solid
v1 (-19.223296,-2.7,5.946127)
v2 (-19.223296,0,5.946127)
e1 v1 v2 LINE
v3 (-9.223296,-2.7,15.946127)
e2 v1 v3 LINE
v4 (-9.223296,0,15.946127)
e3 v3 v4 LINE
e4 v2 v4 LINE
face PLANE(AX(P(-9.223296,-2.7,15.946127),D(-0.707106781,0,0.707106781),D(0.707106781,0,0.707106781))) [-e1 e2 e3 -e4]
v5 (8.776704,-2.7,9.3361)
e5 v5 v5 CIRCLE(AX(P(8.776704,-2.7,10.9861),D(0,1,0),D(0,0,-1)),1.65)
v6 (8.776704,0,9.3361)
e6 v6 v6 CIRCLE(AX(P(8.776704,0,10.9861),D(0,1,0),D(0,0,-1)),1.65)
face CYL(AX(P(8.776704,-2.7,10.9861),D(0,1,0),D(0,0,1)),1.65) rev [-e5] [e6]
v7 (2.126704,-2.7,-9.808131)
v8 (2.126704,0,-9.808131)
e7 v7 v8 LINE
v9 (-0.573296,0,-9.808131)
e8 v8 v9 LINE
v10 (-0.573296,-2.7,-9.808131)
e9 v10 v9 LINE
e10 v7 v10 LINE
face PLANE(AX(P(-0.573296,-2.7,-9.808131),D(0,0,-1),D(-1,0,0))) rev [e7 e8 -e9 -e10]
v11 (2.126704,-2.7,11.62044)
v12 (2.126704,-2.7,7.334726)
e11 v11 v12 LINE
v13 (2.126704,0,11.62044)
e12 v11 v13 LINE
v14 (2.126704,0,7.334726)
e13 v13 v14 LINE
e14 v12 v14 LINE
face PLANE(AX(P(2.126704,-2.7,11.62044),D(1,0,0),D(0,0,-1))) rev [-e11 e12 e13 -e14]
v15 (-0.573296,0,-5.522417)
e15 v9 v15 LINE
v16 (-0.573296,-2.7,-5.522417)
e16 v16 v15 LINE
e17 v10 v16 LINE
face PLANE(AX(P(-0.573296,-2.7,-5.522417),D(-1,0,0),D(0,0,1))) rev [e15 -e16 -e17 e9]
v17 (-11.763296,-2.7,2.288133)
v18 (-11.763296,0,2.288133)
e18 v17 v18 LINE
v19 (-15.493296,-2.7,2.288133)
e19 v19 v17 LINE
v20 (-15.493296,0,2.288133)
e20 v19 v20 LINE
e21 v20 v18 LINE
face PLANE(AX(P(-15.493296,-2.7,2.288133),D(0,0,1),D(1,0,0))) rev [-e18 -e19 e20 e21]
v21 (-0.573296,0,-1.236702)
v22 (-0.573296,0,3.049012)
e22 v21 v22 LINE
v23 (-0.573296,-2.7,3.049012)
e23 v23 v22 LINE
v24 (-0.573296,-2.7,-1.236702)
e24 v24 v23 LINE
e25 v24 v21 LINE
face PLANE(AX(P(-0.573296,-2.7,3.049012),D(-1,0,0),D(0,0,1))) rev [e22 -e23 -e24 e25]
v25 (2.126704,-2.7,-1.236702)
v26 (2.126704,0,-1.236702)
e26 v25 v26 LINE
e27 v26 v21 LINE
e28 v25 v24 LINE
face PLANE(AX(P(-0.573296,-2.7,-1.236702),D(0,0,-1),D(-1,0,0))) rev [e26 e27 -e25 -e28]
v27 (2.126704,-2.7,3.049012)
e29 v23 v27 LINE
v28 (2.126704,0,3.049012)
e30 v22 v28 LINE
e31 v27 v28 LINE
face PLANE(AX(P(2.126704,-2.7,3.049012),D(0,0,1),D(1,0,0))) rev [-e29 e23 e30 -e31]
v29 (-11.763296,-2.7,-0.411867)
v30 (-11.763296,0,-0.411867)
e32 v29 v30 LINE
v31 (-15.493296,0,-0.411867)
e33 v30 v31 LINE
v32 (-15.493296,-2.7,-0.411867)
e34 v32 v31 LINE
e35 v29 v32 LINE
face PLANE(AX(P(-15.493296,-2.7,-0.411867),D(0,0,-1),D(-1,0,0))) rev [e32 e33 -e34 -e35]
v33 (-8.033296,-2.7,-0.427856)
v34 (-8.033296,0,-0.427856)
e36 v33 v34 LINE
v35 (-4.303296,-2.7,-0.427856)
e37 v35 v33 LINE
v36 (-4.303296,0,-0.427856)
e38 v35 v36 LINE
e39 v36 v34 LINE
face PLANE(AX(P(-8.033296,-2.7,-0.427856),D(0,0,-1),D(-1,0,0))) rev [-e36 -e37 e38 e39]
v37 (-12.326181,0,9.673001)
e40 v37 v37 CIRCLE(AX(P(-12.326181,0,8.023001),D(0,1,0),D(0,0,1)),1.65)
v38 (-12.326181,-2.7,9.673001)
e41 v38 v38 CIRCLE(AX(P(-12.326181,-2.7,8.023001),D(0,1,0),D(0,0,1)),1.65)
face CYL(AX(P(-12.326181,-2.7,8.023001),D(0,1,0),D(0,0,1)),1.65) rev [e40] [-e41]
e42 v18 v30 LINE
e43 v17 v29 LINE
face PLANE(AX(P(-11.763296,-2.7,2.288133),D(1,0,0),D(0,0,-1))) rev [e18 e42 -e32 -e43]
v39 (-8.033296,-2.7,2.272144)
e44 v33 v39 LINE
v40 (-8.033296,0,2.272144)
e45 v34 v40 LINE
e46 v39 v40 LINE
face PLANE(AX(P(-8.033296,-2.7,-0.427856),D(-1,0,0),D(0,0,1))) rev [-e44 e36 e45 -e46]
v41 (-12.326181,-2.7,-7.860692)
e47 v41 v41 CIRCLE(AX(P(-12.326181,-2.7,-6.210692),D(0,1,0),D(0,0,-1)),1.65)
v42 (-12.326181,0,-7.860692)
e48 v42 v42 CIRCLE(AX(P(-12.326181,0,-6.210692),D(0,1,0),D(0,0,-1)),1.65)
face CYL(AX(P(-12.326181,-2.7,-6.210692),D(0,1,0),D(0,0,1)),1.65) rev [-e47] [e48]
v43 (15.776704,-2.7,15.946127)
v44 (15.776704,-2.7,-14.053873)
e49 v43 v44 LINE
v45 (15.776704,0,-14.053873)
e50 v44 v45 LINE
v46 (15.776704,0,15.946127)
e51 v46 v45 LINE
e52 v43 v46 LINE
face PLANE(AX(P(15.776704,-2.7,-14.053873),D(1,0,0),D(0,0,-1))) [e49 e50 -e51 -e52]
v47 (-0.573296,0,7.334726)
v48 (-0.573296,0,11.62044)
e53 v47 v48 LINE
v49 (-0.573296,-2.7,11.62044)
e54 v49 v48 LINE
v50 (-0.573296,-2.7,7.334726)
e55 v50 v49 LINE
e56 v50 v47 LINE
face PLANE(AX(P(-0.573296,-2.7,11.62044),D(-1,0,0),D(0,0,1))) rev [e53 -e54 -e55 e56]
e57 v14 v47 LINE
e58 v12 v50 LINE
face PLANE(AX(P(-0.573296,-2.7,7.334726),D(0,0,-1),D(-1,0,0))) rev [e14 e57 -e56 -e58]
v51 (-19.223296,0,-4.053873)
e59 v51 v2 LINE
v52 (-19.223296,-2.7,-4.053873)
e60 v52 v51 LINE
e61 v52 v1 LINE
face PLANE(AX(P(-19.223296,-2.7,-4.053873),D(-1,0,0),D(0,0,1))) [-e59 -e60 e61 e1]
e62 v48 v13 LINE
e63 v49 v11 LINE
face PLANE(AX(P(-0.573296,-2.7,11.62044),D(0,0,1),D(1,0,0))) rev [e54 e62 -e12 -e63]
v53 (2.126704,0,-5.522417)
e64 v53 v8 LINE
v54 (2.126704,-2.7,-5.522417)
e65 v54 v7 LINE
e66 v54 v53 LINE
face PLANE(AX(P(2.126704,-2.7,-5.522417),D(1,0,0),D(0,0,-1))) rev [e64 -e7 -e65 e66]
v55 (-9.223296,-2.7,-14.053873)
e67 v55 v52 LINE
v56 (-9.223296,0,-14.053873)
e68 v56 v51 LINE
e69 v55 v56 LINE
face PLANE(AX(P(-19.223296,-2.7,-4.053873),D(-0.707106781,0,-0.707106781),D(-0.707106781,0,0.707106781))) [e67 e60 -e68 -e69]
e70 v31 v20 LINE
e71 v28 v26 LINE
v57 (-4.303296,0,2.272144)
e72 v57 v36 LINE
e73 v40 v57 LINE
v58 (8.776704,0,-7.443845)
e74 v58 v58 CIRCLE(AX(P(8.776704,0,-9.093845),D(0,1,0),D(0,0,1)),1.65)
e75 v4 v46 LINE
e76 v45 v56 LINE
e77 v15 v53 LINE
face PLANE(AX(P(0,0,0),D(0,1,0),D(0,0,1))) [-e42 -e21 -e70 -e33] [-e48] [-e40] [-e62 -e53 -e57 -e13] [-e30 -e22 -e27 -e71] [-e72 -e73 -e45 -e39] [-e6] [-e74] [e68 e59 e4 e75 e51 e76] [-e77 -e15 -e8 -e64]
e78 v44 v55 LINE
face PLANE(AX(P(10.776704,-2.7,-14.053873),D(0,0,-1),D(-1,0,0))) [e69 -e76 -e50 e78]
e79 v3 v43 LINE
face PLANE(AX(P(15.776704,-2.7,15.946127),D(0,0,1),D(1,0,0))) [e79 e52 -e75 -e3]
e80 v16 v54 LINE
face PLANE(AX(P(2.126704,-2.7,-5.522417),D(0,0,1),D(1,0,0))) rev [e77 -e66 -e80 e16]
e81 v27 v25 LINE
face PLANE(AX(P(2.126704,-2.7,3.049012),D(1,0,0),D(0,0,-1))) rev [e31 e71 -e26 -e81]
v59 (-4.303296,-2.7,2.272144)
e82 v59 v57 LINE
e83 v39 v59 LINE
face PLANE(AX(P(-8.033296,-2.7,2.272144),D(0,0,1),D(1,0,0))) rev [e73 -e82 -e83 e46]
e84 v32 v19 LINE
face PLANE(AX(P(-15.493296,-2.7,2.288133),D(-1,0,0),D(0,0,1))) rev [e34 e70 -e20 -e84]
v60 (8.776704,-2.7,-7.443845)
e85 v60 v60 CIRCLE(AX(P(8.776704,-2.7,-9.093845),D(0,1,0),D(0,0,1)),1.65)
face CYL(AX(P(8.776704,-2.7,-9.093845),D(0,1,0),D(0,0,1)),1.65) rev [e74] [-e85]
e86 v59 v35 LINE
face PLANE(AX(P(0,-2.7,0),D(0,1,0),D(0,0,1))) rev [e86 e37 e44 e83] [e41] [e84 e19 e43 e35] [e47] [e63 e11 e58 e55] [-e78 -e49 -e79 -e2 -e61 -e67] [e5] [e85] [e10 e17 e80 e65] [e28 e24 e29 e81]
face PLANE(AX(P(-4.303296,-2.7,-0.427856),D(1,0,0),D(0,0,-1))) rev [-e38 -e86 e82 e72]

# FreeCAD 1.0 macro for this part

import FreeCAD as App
import Part
import Sketcher

V = App.Vector


def add_polygon(sketch, points):
    """Adds a closed chain of lines whose ends are joined by coincident constraints."""
    first, n = sketch.GeometryCount, len(points)
    for a, b in zip(points, points[1:] + points[:1]):
        sketch.addGeometry(Part.LineSegment(App.Vector(*a, 0), App.Vector(*b, 0)), False)
    for i in range(n):
        sketch.addConstraint(Sketcher.Constraint("Coincident", first + i, 2, first + (i + 1) % n, 1))

doc = App.newDocument("Part")
body = doc.addObject("PartDesign::Body", "Body")

# Sketch on XZ plane
sketch1 = body.newObject("Sketcher::SketchObject", "Sketch")
sketch1.AttachmentSupport = (doc.getObject("XZ_Plane"), [""])
sketch1.MapMode = "FlatFace"
add_polygon(sketch1, [(-9.2, 15.9), (15.8, 15.9), (15.8, -14.1), (-9.2, -14.1), (-19.2, -4.1), (-19.2, 5.9)])  # lines 0-5
sketch1.addGeometry(Part.Circle(V(8.8, 11, 0), V(0, 0, 1), 1.6), False)  # 6
add_polygon(sketch1, [(-0.6, 11.6), (-0.6, 7.3), (2.1, 7.3), (2.1, 11.6)])  # lines 7-10
sketch1.addGeometry(Part.Circle(V(-12.3, 8, 0), V(0, 0, 1), 1.6), False)  # 11
add_polygon(sketch1, [(-0.6, 3), (-0.6, -1.2), (2.1, -1.2), (2.1, 3)])  # lines 12-15
sketch1.addGeometry(Part.Circle(V(8.8, -9.1, 0), V(0, 0, 1), 1.6), False)  # 16
add_polygon(sketch1, [(-0.6, -5.5), (-0.6, -9.8), (2.1, -9.8), (2.1, -5.5)])  # lines 17-20
add_polygon(sketch1, [(-8, 2.3), (-8, -0.4), (-4.3, -0.4), (-4.3, 2.3)])  # lines 21-24
add_polygon(sketch1, [(-15.5, 2.3), (-15.5, -0.4), (-11.8, -0.4), (-11.8, 2.3)])  # lines 25-28
sketch1.addGeometry(Part.Circle(V(-12.3, -6.2, 0), V(0, 0, 1), 1.6), False)  # 29
sketch1.addConstraint([
    Sketcher.Constraint("Horizontal", 0),
    Sketcher.Constraint("Vertical", 1),
    Sketcher.Constraint("Horizontal", 2),
    Sketcher.Constraint("Vertical", 4),
    Sketcher.Constraint("Vertical", 7),
    Sketcher.Constraint("Horizontal", 8),
    Sketcher.Constraint("Vertical", 9),
    Sketcher.Constraint("Horizontal", 10),
    Sketcher.Constraint("Vertical", 12),
    Sketcher.Constraint("Horizontal", 13),
    Sketcher.Constraint("Vertical", 14),
    Sketcher.Constraint("Horizontal", 15),
    Sketcher.Constraint("Vertical", 17),
    Sketcher.Constraint("Horizontal", 18),
    Sketcher.Constraint("Vertical", 19),
    Sketcher.Constraint("Horizontal", 20),
    Sketcher.Constraint("Vertical", 21),
    Sketcher.Constraint("Horizontal", 22),
    Sketcher.Constraint("Vertical", 23),
    Sketcher.Constraint("Horizontal", 24),
    Sketcher.Constraint("Vertical", 25),
    Sketcher.Constraint("Horizontal", 26),
    Sketcher.Constraint("Vertical", 27),
    Sketcher.Constraint("Horizontal", 28),
    Sketcher.Constraint("Equal", 6, 11),
    Sketcher.Constraint("Equal", 11, 16),
    Sketcher.Constraint("Equal", 16, 29),
    Sketcher.Constraint("Perpendicular", 3, 5),
    Sketcher.Constraint("Vertical", 6, 3, 16, 3),
    Sketcher.Constraint("Vertical", 11, 3, 29, 3),
    Sketcher.Constraint("Vertical", 2, 2, 5, 2),
    Sketcher.Constraint("Vertical", 10, 2, 12, 2),
    Sketcher.Constraint("Vertical", 9, 2, 13, 2),
    Sketcher.Constraint("Vertical", 15, 2, 17, 2),
    Sketcher.Constraint("Vertical", 14, 2, 18, 2),
    Sketcher.Constraint("Equal", 24, 26),
    Sketcher.Constraint("Equal", 9, 12),
    Sketcher.Constraint("Equal", 14, 17),
    Sketcher.Constraint("Equal", 20, 21),
    Sketcher.Constraint("Equal", 23, 25),
    Sketcher.Constraint("Equal", 3, 5),
    Sketcher.Constraint("Diameter", 6, 3.3),
    Sketcher.Constraint("DistanceX", 0, 1, 0, 2, 25.0),
    Sketcher.Constraint("DistanceY", 1, 2, 1, 1, 30.0),
    Sketcher.Constraint("DistanceY", 4, 1, 4, 2, 10.0),
    Sketcher.Constraint("DistanceX", 8, 1, 8, 2, 2.7),
    Sketcher.Constraint("DistanceX", 6, 3, 0, 2, 7.0),
    Sketcher.Constraint("DistanceX", 22, 1, 22, 2, 3.73),
    Sketcher.Constraint("DistanceX", 7, 2, 6, 3, 9.35),
    Sketcher.Constraint("DistanceX", 21, 2, 12, 2, 7.46),
    Sketcher.Constraint("DistanceX", 3, 2, 25, 2, 3.73),
    Sketcher.Constraint("DistanceY", -1, 1, 11, 3, 8.023001),
    Sketcher.Constraint("DistanceY", -1, 1, 6, 3, 10.9861),
    Sketcher.Constraint("DistanceY", 7, 2, 5, 2, 8.611401),
    Sketcher.Constraint("DistanceY", 7, 2, 7, 1, 4.285714),
    Sketcher.Constraint("DistanceX", 11, 3, -1, 1, 12.326181),
    Sketcher.Constraint("DistanceY", 29, 3, -1, 1, 6.210692),
    Sketcher.Constraint("DistanceY", -1, 1, 9, 2, 11.62044),
    Sketcher.Constraint("DistanceY", -1, 1, 14, 2, 3.049012),
    Sketcher.Constraint("DistanceY", 17, 2, -1, 1, 9.808131),
    Sketcher.Constraint("DistanceY", 16, 3, 19, 2, 3.571429),
    Sketcher.Constraint("DistanceY", 21, 2, 15, 2, 3.476868),
    Sketcher.Constraint("DistanceY", 21, 2, 25, 2, 0.015989),
    Sketcher.Constraint("DistanceX", -1, 1, 6, 3, 8.776704),
])
pad1 = body.newObject("PartDesign::Pad", "Pad")
pad1.Profile = sketch1
pad1.Length = 2.7

doc.recompute()
